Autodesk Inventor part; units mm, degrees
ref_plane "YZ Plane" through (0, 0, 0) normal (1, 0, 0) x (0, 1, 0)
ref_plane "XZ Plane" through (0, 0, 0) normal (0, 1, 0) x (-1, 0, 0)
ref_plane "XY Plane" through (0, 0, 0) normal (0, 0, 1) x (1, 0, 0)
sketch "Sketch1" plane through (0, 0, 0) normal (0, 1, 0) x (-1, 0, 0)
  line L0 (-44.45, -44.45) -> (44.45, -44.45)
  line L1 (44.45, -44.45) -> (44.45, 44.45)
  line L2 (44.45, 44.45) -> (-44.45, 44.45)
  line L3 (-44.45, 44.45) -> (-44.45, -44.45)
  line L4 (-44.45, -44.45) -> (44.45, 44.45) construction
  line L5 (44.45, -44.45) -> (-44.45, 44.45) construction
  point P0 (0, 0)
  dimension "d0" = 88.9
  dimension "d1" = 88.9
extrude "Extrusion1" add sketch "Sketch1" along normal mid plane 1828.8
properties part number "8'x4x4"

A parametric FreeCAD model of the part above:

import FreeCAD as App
import Part
import Sketcher
Q = App.Units.Quantity


def add_polygon(sketch, points):
    """Adds a closed chain of lines whose ends are joined by coincident constraints."""
    first, n = sketch.GeometryCount, len(points)
    for a, b in zip(points, points[1:] + points[:1]):
        sketch.addGeometry(Part.LineSegment(App.Vector(*a, 0), App.Vector(*b, 0)), False)
    for i in range(n):
        sketch.addConstraint(Sketcher.Constraint("Coincident", first + i, 2, first + (i + 1) % n, 1))

doc = App.newDocument("Part")
params = doc.addObject("Spreadsheet::Sheet", "Params")
for row, (alias, value) in enumerate([
    ("sketch1_width", "3.5 in"),
    ("pad1_length", "72 in"),
], start=1):
    params.set(f"A{row}", alias)
    params.set(f"B{row}", "=" + value)
    params.setAlias(f"B{row}", alias)

body = doc.addObject("PartDesign::Body", "Body")

sketch1 = doc.addObject("Sketcher::SketchObject", "Sketch")
body.addObject(sketch1)
sketch1.AttachmentSupport = (doc.XZ_Plane, [""])
sketch1.MapMode = "FlatFace"
add_polygon(sketch1, [(44, 44), (44, -44), (-44, -44), (-44, 44)])
sketch1.addConstraint([
    Sketcher.Constraint("Vertical", 0),
    Sketcher.Constraint("Horizontal", 1),
    Sketcher.Constraint("Vertical", 2),
    Sketcher.Constraint("Horizontal", 3),
    Sketcher.Constraint("Symmetric", 0, 2, 2, 2, -1, 1),
    Sketcher.Constraint("Equal", 3, 0),
    Sketcher.Constraint("DistanceX", 1, 2, 1, 1, Q("3.5 in")),
])
sketch1.setExpression("Constraints[10]", "Params.sketch1_width")
pad1 = doc.addObject("PartDesign::Pad", "Pad")
body.addObject(pad1)
pad1.Profile = sketch1
pad1.setExpression("Length", "Params.pad1_length")
pad1.Midplane = True

doc.recompute()
